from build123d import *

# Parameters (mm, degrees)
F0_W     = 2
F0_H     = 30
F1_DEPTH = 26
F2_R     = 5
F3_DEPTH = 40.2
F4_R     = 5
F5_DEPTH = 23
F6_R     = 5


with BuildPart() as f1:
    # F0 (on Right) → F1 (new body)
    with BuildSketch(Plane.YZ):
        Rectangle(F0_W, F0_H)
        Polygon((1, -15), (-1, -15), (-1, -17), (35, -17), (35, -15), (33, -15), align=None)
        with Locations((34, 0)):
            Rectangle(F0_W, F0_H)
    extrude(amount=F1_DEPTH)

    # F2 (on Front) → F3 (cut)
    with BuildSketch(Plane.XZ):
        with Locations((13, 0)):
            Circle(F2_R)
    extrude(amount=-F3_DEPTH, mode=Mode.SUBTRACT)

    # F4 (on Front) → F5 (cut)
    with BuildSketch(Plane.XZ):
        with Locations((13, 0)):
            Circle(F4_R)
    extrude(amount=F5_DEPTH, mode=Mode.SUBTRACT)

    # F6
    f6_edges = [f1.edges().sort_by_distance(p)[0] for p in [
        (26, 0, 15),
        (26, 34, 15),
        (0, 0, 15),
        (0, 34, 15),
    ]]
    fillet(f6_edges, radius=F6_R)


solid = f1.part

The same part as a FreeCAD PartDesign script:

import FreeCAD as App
import Part
import Sketcher

V = App.Vector


def edges_at(feature, points):
    """Names of the edges that pass closest to the given points."""
    edges = feature.Shape.Edges
    near = lambda p: min(range(len(edges)), key=lambda i: edges[i].distToShape(Part.Vertex(*p))[0])
    return sorted({f"Edge{near(p) + 1}" for p in points})


def add_polygon(sketch, points):
    """Adds a closed chain of lines whose ends are joined by coincident constraints."""
    first, n = sketch.GeometryCount, len(points)
    for a, b in zip(points, points[1:] + points[:1]):
        sketch.addGeometry(Part.LineSegment(App.Vector(*a, 0), App.Vector(*b, 0)), False)
    for i in range(n):
        sketch.addConstraint(Sketcher.Constraint("Coincident", first + i, 2, first + (i + 1) % n, 1))

doc = App.newDocument("Part")
body = doc.addObject("PartDesign::Body", "Body")

# Sketch on YZ plane
sketch1 = doc.addObject("Sketcher::SketchObject", "Sketch")
body.addObject(sketch1)
sketch1.AttachmentSupport = (doc.YZ_Plane, [""])
sketch1.MapMode = "FlatFace"
add_polygon(sketch1, [(-1, 15), (-1, -17), (35, -17), (35, 15), (33, 15), (33, -15), (1, -15), (1, 15)])  # lines 0-7
sketch1.addConstraint(Sketcher.Constraint("Vertical", 0))
sketch1.addConstraint(Sketcher.Constraint("Horizontal", 1))
sketch1.addConstraint(Sketcher.Constraint("Vertical", 2))
sketch1.addConstraint(Sketcher.Constraint("Horizontal", 3))
sketch1.addConstraint(Sketcher.Constraint("Vertical", 4))
sketch1.addConstraint(Sketcher.Constraint("Horizontal", 5))
sketch1.addConstraint(Sketcher.Constraint("Vertical", 6))
sketch1.addConstraint(Sketcher.Constraint("Horizontal", 7))
sketch1.addConstraint(Sketcher.Constraint("Symmetric", 5, 2, 7, 2, -1, 1))
sketch1.addConstraint(Sketcher.Constraint("Horizontal", 3, 2, 6, 2))
sketch1.addConstraint(Sketcher.Constraint("Equal", 3, 7))
sketch1.addConstraint(Sketcher.Constraint("Equal", 5, 0))
sketch1.addConstraint(Sketcher.Constraint("DistanceX", 1, 1, 1, 2, 36.0))
sketch1.addConstraint(Sketcher.Constraint("DistanceX", 3, 2, 3, 1, 2.0))
sketch1.addConstraint(Sketcher.Constraint("DistanceY", 4, 2, 4, 1, 30.0))
pad1 = doc.addObject("PartDesign::Pad", "Pad")
body.addObject(pad1)
pad1.Profile = sketch1
pad1.Length = 26

# Sketch on XZ plane
sketch2 = doc.addObject("Sketcher::SketchObject", "Sketch001")
body.addObject(sketch2)
sketch2.AttachmentSupport = (doc.XZ_Plane, [""])
sketch2.MapMode = "FlatFace"
sketch2.addGeometry(Part.Circle(V(13, 0, 0), V(0, 0, 1), 5), False)
sketch2.addConstraint(Sketcher.Constraint("PointOnObject", 0, 3, -1))
sketch2.addConstraint(Sketcher.Constraint("Diameter", 0, 10.0))
sketch2.addConstraint(Sketcher.Constraint("DistanceX", -1, 1, 0, 3, 13.0))
pocket1 = doc.addObject("PartDesign::Pocket", "Pocket")
body.addObject(pocket1)
pocket1.Profile = sketch2
pocket1.Length = 40.2

# Sketch on XZ plane
sketch3 = doc.addObject("Sketcher::SketchObject", "Sketch002")
body.addObject(sketch3)
sketch3.AttachmentSupport = (doc.XZ_Plane, [""])
sketch3.MapMode = "FlatFace"
sketch3.addGeometry(Part.Circle(V(13, 0, 0), V(0, 0, 1), 5), False)
sketch3.addConstraint(Sketcher.Constraint("PointOnObject", 0, 3, -1))
sketch3.addConstraint(Sketcher.Constraint("Diameter", 0, 10.0))
sketch3.addConstraint(Sketcher.Constraint("DistanceX", -1, 1, 0, 3, 13.0))
pocket2 = doc.addObject("PartDesign::Pocket", "Pocket001")
body.addObject(pocket2)
pocket2.Profile = sketch3
pocket2.Length = 23
pocket2.Reversed = True
doc.recompute()

fillet = doc.addObject("PartDesign::Fillet", "Fillet")
body.addObject(fillet)
fillet.Base = (pocket2, edges_at(pocket2, [
    (26, 0, 15),
    (26, 34, 15),
    (0, 0, 15),
    (0, 34, 15),
]))
fillet.Radius = 5

doc.recompute()
